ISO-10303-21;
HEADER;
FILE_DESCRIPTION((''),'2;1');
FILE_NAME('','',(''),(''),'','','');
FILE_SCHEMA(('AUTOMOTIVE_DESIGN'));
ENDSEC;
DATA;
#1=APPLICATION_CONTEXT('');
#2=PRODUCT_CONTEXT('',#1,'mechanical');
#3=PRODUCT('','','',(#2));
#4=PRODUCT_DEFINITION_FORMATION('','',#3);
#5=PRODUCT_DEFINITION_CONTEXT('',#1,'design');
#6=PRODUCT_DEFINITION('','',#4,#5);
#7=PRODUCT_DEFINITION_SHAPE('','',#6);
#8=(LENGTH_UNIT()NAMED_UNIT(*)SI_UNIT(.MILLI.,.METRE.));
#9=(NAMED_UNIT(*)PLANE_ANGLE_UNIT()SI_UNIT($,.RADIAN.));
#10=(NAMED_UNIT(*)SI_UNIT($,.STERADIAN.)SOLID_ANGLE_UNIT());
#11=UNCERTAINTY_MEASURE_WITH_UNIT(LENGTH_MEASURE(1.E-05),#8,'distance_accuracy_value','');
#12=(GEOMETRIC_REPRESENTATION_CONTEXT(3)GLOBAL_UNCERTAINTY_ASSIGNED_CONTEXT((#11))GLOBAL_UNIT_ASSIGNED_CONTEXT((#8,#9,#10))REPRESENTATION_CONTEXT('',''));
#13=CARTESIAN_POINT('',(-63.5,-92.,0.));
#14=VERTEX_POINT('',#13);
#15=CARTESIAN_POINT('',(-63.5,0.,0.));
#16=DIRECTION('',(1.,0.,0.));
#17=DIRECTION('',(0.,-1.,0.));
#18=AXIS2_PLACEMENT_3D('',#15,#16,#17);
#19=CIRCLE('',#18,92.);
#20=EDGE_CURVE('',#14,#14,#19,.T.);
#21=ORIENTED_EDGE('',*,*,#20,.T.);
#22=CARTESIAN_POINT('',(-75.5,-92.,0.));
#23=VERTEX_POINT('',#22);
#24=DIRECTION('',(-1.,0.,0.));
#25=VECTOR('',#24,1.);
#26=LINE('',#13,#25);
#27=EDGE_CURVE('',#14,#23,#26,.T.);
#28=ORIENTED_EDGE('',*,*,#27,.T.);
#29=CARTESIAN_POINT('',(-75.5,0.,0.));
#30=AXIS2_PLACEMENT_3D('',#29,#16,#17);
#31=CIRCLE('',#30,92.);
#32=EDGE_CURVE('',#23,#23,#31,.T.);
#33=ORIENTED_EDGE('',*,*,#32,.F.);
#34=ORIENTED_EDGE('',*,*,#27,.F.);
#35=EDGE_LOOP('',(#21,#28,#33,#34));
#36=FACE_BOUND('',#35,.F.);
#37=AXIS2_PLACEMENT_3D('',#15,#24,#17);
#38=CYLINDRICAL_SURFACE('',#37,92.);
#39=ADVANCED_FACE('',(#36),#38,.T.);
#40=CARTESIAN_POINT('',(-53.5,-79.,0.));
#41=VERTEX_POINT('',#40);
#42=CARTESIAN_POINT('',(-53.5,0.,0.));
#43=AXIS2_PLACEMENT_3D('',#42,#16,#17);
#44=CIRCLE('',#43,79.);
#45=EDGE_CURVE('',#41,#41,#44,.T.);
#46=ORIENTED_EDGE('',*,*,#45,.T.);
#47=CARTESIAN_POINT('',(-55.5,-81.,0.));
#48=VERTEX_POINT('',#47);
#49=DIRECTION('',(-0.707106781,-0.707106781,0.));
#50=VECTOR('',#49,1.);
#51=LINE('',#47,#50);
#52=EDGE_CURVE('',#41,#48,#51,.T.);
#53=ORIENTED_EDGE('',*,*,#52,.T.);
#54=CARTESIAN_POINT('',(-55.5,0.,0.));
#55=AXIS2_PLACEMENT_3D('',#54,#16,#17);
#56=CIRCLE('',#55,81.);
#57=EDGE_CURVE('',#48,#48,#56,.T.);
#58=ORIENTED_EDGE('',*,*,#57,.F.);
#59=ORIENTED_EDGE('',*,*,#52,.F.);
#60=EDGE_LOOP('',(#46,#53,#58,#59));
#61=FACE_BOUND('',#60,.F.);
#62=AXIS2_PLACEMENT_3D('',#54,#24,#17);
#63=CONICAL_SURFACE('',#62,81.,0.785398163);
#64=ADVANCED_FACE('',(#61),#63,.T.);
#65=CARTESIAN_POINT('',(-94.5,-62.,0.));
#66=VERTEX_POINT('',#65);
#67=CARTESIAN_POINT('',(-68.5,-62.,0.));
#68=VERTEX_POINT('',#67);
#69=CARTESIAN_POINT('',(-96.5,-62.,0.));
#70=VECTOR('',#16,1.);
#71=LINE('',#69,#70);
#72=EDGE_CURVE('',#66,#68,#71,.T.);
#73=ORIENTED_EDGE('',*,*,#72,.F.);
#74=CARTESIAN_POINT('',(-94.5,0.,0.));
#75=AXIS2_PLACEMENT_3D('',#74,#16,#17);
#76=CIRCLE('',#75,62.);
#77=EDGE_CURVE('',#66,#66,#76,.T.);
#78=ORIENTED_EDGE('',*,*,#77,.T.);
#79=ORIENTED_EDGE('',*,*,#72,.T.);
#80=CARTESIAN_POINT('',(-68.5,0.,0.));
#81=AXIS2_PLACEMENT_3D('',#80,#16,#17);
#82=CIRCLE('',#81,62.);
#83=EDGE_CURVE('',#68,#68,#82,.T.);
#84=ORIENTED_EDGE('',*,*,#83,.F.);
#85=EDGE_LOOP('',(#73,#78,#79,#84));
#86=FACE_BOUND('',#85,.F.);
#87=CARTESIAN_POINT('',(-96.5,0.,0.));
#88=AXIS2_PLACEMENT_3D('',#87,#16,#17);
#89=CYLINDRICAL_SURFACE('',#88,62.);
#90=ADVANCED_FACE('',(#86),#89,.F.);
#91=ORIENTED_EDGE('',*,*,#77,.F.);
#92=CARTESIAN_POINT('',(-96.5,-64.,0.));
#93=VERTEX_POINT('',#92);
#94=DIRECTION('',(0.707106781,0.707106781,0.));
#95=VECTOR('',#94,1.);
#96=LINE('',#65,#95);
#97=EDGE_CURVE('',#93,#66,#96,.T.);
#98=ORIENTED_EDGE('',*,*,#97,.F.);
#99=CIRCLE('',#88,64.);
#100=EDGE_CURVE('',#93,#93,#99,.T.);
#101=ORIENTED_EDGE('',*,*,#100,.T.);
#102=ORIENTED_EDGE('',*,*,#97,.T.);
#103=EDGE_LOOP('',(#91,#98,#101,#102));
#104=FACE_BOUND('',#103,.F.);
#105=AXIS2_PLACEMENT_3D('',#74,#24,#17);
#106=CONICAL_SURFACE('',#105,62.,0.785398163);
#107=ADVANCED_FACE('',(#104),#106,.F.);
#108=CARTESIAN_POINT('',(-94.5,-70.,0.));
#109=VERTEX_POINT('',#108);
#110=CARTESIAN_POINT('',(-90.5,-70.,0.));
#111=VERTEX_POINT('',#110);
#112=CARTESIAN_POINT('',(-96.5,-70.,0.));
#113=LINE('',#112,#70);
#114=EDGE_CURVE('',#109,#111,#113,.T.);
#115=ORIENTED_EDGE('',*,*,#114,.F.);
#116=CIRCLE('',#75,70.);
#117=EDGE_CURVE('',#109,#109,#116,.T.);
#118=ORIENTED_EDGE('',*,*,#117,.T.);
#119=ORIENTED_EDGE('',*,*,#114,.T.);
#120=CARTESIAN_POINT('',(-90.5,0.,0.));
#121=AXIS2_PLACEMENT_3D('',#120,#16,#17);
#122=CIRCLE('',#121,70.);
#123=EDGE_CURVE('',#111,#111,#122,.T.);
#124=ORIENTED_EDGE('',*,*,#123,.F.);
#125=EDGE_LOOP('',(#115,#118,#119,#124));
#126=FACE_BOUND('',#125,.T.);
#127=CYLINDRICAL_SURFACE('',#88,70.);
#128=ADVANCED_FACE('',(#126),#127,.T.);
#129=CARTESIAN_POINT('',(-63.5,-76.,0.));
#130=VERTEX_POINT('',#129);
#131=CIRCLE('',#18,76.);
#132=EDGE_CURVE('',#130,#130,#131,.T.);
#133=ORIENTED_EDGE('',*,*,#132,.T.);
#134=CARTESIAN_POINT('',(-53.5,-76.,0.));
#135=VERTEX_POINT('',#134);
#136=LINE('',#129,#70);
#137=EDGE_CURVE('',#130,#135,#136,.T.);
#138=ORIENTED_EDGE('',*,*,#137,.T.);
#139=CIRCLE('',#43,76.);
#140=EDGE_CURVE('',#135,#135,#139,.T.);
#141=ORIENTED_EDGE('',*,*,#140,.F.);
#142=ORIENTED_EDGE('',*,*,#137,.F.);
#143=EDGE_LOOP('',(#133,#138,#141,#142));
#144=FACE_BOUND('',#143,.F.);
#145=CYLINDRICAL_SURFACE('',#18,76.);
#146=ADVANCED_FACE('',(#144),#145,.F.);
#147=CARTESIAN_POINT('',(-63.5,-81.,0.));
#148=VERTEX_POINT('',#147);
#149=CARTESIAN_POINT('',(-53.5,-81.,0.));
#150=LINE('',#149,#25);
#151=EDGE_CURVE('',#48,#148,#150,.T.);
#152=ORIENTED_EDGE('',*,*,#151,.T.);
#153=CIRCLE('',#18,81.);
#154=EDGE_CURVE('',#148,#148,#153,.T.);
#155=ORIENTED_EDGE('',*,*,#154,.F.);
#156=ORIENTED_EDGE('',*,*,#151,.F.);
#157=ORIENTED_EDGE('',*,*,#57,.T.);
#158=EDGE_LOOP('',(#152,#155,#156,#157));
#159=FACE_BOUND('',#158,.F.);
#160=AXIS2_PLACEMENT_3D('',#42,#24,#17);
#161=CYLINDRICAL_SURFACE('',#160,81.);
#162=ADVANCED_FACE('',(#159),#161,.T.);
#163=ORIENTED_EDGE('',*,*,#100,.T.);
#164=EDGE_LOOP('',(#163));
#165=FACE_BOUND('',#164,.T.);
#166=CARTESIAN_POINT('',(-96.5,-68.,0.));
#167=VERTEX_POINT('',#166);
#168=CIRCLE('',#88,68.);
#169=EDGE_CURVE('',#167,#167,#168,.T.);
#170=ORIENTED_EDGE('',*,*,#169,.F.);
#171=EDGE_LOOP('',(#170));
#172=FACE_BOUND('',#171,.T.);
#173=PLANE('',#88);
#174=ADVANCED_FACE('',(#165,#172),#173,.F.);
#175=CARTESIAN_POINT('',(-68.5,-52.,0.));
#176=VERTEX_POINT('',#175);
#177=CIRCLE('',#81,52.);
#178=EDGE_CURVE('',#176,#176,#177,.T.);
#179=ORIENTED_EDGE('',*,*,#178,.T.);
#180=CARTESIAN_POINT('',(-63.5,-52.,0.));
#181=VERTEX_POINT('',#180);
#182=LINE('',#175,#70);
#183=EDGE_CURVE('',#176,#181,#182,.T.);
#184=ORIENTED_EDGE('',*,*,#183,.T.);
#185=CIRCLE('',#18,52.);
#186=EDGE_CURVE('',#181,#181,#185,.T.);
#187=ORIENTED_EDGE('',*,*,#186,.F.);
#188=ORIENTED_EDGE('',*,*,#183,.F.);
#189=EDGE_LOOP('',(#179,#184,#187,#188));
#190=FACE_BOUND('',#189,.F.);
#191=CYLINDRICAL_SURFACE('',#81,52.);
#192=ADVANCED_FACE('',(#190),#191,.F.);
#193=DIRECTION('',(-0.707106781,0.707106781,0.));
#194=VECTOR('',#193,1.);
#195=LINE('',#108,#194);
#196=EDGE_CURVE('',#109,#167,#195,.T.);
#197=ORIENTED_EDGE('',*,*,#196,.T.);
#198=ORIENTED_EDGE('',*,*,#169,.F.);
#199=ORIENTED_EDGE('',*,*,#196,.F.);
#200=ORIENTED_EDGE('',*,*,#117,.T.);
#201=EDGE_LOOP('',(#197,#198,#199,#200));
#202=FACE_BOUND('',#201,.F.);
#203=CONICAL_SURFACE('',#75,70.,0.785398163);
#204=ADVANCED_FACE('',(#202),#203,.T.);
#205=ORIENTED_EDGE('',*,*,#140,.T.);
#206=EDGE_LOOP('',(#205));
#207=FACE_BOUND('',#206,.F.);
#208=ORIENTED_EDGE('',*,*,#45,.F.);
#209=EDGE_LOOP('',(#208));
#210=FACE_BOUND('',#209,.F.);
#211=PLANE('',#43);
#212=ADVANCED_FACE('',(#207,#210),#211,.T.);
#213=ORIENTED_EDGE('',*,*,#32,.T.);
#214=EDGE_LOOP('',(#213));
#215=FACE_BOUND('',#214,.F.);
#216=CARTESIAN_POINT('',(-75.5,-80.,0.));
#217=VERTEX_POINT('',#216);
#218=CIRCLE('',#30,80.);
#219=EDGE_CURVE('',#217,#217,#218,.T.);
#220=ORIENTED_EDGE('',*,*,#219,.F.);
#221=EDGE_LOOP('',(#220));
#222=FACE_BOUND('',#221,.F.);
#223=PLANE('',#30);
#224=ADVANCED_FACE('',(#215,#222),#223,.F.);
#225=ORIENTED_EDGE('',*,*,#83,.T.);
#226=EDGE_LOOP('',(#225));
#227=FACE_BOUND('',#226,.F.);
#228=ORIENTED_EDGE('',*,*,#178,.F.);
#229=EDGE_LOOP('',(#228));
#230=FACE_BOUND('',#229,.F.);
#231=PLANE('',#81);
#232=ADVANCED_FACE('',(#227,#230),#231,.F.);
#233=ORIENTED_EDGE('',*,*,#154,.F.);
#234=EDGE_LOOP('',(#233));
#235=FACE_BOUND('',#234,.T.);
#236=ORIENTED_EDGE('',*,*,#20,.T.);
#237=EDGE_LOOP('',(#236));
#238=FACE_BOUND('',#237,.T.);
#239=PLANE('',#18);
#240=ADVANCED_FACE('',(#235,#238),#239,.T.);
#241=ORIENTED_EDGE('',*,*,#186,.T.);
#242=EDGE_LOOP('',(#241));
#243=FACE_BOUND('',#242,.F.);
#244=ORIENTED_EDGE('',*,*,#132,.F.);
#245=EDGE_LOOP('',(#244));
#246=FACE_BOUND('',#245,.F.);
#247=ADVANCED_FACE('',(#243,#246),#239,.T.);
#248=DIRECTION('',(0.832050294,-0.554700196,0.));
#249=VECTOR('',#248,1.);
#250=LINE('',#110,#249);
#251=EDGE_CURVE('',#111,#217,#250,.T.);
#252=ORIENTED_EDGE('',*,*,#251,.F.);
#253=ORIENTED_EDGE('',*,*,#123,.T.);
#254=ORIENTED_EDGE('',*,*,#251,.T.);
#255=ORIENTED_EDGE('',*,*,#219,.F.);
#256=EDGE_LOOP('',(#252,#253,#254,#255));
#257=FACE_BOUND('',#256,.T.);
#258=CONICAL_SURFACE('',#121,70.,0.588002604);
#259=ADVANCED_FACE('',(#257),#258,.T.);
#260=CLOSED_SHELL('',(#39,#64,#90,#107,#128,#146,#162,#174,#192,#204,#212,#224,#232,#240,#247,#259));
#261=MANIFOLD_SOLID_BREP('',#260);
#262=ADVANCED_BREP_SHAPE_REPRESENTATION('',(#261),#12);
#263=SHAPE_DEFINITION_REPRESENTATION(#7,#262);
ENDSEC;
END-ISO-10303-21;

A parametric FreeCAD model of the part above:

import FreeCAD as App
import Part
import Sketcher
from FreeCAD import Vector
Q = App.Units.Quantity


def edges_at(feature, points):
    """Names of the edges that pass closest to the given points."""
    edges = feature.Shape.Edges
    near = lambda p: min(range(len(edges)), key=lambda i: edges[i].distToShape(Part.Vertex(*p))[0])
    return sorted({f"Edge{near(p) + 1}" for p in points})

doc = App.newDocument("Part")
body = doc.addObject("PartDesign::Body", "Body")

# Sketch on XY plane
sketch1 = body.newObject("Sketcher::SketchObject", "Sketch")
sketch1.AttachmentSupport = (doc.getObject("XY_Plane"), [""])
sketch1.MapMode = "FlatFace"
sketch1.addGeometry([
    Part.LineSegment(Vector(-76, -92, 0), Vector(-64, -92, 0)),  # 0
    Part.LineSegment(Vector(-64, -92, 0), Vector(-64, -81, 0)),  # 1
    Part.LineSegment(Vector(-64, -81, 0), Vector(-54, -81, 0)),  # 2
    Part.LineSegment(Vector(-54, -81, 0), Vector(-54, -76, 0)),  # 3
    Part.LineSegment(Vector(-54, -76, 0), Vector(-64, -76, 0)),  # 4
    Part.LineSegment(Vector(-64, -76, 0), Vector(-64, -52, 0)),  # 5
    Part.LineSegment(Vector(-64, -52, 0), Vector(-68, -52, 0)),  # 6
    Part.LineSegment(Vector(-68, -52, 0), Vector(-68, -62, 0)),  # 7
    Part.LineSegment(Vector(-68, -62, 0), Vector(-96, -62, 0)),  # 8
    Part.LineSegment(Vector(-96, -62, 0), Vector(-96, -70, 0)),  # 9
    Part.LineSegment(Vector(-96, -70, 0), Vector(-90, -70, 0)),  # 10
    Part.LineSegment(Vector(-90, -70, 0), Vector(-76, -80, 0)),  # 11
    Part.LineSegment(Vector(-76, -80, 0), Vector(-76, -92, 0)),  # 12
], False)
sketch1.addConstraint([
    Sketcher.Constraint("Coincident", 0, 2, 1, 1),
    Sketcher.Constraint("Coincident", 1, 2, 2, 1),
    Sketcher.Constraint("Coincident", 2, 2, 3, 1),
    Sketcher.Constraint("Coincident", 3, 2, 4, 1),
    Sketcher.Constraint("Coincident", 4, 2, 5, 1),
    Sketcher.Constraint("Coincident", 5, 2, 6, 1),
    Sketcher.Constraint("Coincident", 6, 2, 7, 1),
    Sketcher.Constraint("Coincident", 7, 2, 8, 1),
    Sketcher.Constraint("Coincident", 8, 2, 9, 1),
    Sketcher.Constraint("Coincident", 9, 2, 10, 1),
    Sketcher.Constraint("Coincident", 10, 2, 11, 1),
    Sketcher.Constraint("Coincident", 11, 2, 12, 1),
    Sketcher.Constraint("Coincident", 12, 2, 0, 1),
    Sketcher.Constraint("Horizontal", 0),
    Sketcher.Constraint("Vertical", 1),
    Sketcher.Constraint("Horizontal", 2),
    Sketcher.Constraint("Vertical", 3),
    Sketcher.Constraint("Horizontal", 4),
    Sketcher.Constraint("Vertical", 5),
    Sketcher.Constraint("Horizontal", 6),
    Sketcher.Constraint("Vertical", 7),
    Sketcher.Constraint("Horizontal", 8),
    Sketcher.Constraint("Vertical", 9),
    Sketcher.Constraint("Horizontal", 10),
    Sketcher.Constraint("Vertical", 12),
    Sketcher.Constraint("Vertical", 1, 2, 4, 2),
    Sketcher.Constraint("Equal", 6, 3),
    Sketcher.Constraint("Equal", 4, 7),
    Sketcher.Constraint("Equal", 0, 12),
    Sketcher.Constraint("DistanceX", 0, 1, 0, 2, Q("12 mm")),
    Sketcher.Constraint("DistanceX", 2, 1, 2, 2, Q("10 mm")),
    Sketcher.Constraint("DistanceX", 6, 2, 6, 1, Q("5 mm")),
    Sketcher.Constraint("DistanceX", 10, 1, 10, 2, Q("6 mm")),
    Sketcher.Constraint("DistanceY", 9, 2, 9, 1, Q("8 mm")),
    Sketcher.Constraint("DistanceY", 9, 2, -1, 1, Q("70 mm")),
    Sketcher.Constraint("DistanceY", 4, 2, 9, 2, Q("6 mm")),
    Sketcher.Constraint("DistanceY", 11, 2, 10, 2, Q("10 mm")),
    Sketcher.Constraint("DistanceX", 8, 2, 8, 1, Q("28 mm")),
    Sketcher.Constraint("DistanceX", 0, 2, -1, 1, Q("63.5 mm")),
])
revolution = body.newObject("PartDesign::Revolution", "Revolution")
revolution.Profile = sketch1
revolution.ReferenceAxis = (sketch1, ["H_Axis"])
revolution.Angle = 360
doc.recompute()

chamfer = body.newObject("PartDesign::Chamfer", "Chamfer")
chamfer.Base = (revolution, edges_at(revolution, [(-96.5, 70, 0)]))
chamfer.Size = 2
doc.recompute()

chamfer2 = body.newObject("PartDesign::Chamfer", "Chamfer001")
chamfer2.Base = (chamfer, edges_at(chamfer, [(-96.5, 62, 0)]))
chamfer2.Size = 2
doc.recompute()

chamfer3 = body.newObject("PartDesign::Chamfer", "Chamfer002")
chamfer3.Base = (chamfer2, edges_at(chamfer2, [(-53.5, 81, 0)]))
chamfer3.Size = 2

doc.recompute()
